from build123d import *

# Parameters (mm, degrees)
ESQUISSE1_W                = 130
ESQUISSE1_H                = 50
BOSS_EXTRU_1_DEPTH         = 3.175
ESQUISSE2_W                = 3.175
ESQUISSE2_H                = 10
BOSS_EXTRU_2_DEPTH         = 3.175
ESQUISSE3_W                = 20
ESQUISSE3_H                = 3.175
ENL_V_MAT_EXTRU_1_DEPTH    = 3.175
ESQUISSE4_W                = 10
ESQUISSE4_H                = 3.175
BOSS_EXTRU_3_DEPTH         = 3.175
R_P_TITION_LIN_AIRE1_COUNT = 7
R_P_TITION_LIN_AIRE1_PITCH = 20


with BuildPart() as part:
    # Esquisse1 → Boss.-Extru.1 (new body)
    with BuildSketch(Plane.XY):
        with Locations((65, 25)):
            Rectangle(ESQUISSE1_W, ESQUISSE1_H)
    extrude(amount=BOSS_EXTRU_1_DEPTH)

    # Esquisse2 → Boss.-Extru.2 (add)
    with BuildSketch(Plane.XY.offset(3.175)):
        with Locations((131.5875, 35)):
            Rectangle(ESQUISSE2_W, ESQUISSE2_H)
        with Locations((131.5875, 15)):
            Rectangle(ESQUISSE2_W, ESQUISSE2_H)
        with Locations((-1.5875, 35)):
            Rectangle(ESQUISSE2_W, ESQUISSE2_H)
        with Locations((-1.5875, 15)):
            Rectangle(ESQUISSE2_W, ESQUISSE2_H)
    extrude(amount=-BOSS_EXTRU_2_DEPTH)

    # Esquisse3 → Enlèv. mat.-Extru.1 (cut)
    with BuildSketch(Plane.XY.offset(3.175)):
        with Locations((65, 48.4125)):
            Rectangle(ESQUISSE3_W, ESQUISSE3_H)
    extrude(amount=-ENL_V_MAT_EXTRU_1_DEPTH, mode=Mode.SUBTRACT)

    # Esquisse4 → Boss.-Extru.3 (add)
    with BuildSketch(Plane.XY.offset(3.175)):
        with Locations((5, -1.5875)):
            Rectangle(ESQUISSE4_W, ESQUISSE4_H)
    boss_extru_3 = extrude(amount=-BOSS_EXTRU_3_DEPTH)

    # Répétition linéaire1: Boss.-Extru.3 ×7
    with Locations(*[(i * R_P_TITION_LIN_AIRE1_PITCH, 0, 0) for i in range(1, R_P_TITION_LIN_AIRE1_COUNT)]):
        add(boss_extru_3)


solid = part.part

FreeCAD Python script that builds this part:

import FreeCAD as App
import Part
import Sketcher


def add_polygon(sketch, points):
    """Adds a closed chain of lines whose ends are joined by coincident constraints."""
    first, n = sketch.GeometryCount, len(points)
    for a, b in zip(points, points[1:] + points[:1]):
        sketch.addGeometry(Part.LineSegment(App.Vector(*a, 0), App.Vector(*b, 0)), False)
    for i in range(n):
        sketch.addConstraint(Sketcher.Constraint("Coincident", first + i, 2, first + (i + 1) % n, 1))

doc = App.newDocument("Part")
body = doc.addObject("PartDesign::Body", "Body")

# Sketch on XY plane
sketch1 = body.newObject("Sketcher::SketchObject", "Sketch")
sketch1.AttachmentSupport = (doc.getObject("XY_Plane"), [""])
sketch1.MapMode = "FlatFace"
add_polygon(sketch1, [(0, 50), (0, 0), (130, 0), (130, 50)])  # lines 0-3
sketch1.addConstraint(Sketcher.Constraint("Vertical", 0))
sketch1.addConstraint(Sketcher.Constraint("Horizontal", 1))
sketch1.addConstraint(Sketcher.Constraint("Vertical", 2))
sketch1.addConstraint(Sketcher.Constraint("Horizontal", 3))
sketch1.addConstraint(Sketcher.Constraint("Coincident", 0, 2, -1, 1))
sketch1.addConstraint(Sketcher.Constraint("DistanceX", 1, 1, 1, 2, 130.0))
sketch1.addConstraint(Sketcher.Constraint("DistanceY", 0, 2, 0, 1, 50.0))
pad1 = body.newObject("PartDesign::Pad", "Pad")
pad1.Profile = sketch1
pad1.Length = 3.175

# Sketch on XY plane
sketch2 = body.newObject("Sketcher::SketchObject", "Sketch001")
sketch2.AttachmentSupport = (doc.getObject("XY_Plane"), [""])
sketch2.MapMode = "FlatFace"
sketch2.AttachmentOffset = App.Placement(App.Vector(0, 0, 3.175), App.Rotation())
add_polygon(sketch2, [(130, 40), (130, 30), (133.2, 30), (133.2, 40)])  # lines 0-3
add_polygon(sketch2, [(130, 20), (130, 10), (133.2, 10), (133.2, 20)])  # lines 4-7
add_polygon(sketch2, [(-3.2, 40), (-3.2, 30), (0, 30), (0, 40)])  # lines 8-11
add_polygon(sketch2, [(-3.2, 20), (-3.2, 10), (0, 10), (0, 20)])  # lines 12-15
sketch2.addConstraint(Sketcher.Constraint("Vertical", 0))
sketch2.addConstraint(Sketcher.Constraint("Horizontal", 1))
sketch2.addConstraint(Sketcher.Constraint("Vertical", 2))
sketch2.addConstraint(Sketcher.Constraint("Horizontal", 3))
sketch2.addConstraint(Sketcher.Constraint("Vertical", 4))
sketch2.addConstraint(Sketcher.Constraint("Horizontal", 5))
sketch2.addConstraint(Sketcher.Constraint("Vertical", 6))
sketch2.addConstraint(Sketcher.Constraint("Horizontal", 7))
sketch2.addConstraint(Sketcher.Constraint("Vertical", 8))
sketch2.addConstraint(Sketcher.Constraint("Horizontal", 9))
sketch2.addConstraint(Sketcher.Constraint("Vertical", 10))
sketch2.addConstraint(Sketcher.Constraint("Horizontal", 11))
sketch2.addConstraint(Sketcher.Constraint("Vertical", 12))
sketch2.addConstraint(Sketcher.Constraint("Horizontal", 13))
sketch2.addConstraint(Sketcher.Constraint("Vertical", 14))
sketch2.addConstraint(Sketcher.Constraint("Horizontal", 15))
sketch2.addConstraint(Sketcher.Constraint("PointOnObject", 9, 2, -2))
sketch2.addConstraint(Sketcher.Constraint("PointOnObject", 13, 2, -2))
sketch2.addConstraint(Sketcher.Constraint("Horizontal", 1, 2, 8, 2))
sketch2.addConstraint(Sketcher.Constraint("Horizontal", 3, 2, 10, 2))
sketch2.addConstraint(Sketcher.Constraint("Horizontal", 5, 2, 12, 2))
sketch2.addConstraint(Sketcher.Constraint("Horizontal", 7, 2, 14, 2))
sketch2.addConstraint(Sketcher.Constraint("Vertical", 3, 2, 4, 2))
sketch2.addConstraint(Sketcher.Constraint("Vertical", 2, 2, 5, 2))
sketch2.addConstraint(Sketcher.Constraint("Vertical", 11, 2, 12, 2))
sketch2.addConstraint(Sketcher.Constraint("Equal", 7, 9))
sketch2.addConstraint(Sketcher.Constraint("Equal", 2, 4))
sketch2.addConstraint(Sketcher.Constraint("DistanceY", 0, 2, 0, 1, 10.0))
sketch2.addConstraint(Sketcher.Constraint("DistanceX", -1, 1, 0, 2, 130.0))
sketch2.addConstraint(Sketcher.Constraint("DistanceY", -1, 1, 0, 2, 30.0))
sketch2.addConstraint(Sketcher.Constraint("DistanceY", -1, 1, 4, 2, 10.0))
sketch2.addConstraint(Sketcher.Constraint("DistanceX", 1, 1, 1, 2, 3.175))
pad2 = body.newObject("PartDesign::Pad", "Pad001")
pad2.Profile = sketch2
pad2.Length = 3.175
pad2.Reversed = True

# Sketch on XY plane
sketch3 = body.newObject("Sketcher::SketchObject", "Sketch002")
sketch3.AttachmentSupport = (doc.getObject("XY_Plane"), [""])
sketch3.MapMode = "FlatFace"
sketch3.AttachmentOffset = App.Placement(App.Vector(0, 0, 3.175), App.Rotation())
add_polygon(sketch3, [(55, 50), (55, 46.8), (75, 46.8), (75, 50)])  # lines 0-3
sketch3.addConstraint(Sketcher.Constraint("Vertical", 0))
sketch3.addConstraint(Sketcher.Constraint("Horizontal", 1))
sketch3.addConstraint(Sketcher.Constraint("Vertical", 2))
sketch3.addConstraint(Sketcher.Constraint("Horizontal", 3))
sketch3.addConstraint(Sketcher.Constraint("DistanceX", 1, 1, 1, 2, 20.0))
sketch3.addConstraint(Sketcher.Constraint("DistanceX", -1, 1, 0, 2, 55.0))
sketch3.addConstraint(Sketcher.Constraint("DistanceY", -1, 1, 2, 2, 50.0))
sketch3.addConstraint(Sketcher.Constraint("DistanceY", 0, 2, 0, 1, 3.175))
pocket1 = body.newObject("PartDesign::Pocket", "Pocket")
pocket1.Profile = sketch3
pocket1.Length = 3.175

# Sketch on XY plane
sketch4 = body.newObject("Sketcher::SketchObject", "Sketch003")
sketch4.AttachmentSupport = (doc.getObject("XY_Plane"), [""])
sketch4.MapMode = "FlatFace"
sketch4.AttachmentOffset = App.Placement(App.Vector(0, 0, 3.175), App.Rotation())
add_polygon(sketch4, [(0, 0), (0, -3.2), (10, -3.2), (10, 0)])  # lines 0-3
sketch4.addConstraint(Sketcher.Constraint("Vertical", 0))
sketch4.addConstraint(Sketcher.Constraint("Horizontal", 1))
sketch4.addConstraint(Sketcher.Constraint("Vertical", 2))
sketch4.addConstraint(Sketcher.Constraint("Horizontal", 3))
sketch4.addConstraint(Sketcher.Constraint("Coincident", 3, 2, -1, 1))
sketch4.addConstraint(Sketcher.Constraint("DistanceX", 1, 1, 1, 2, 10.0))
sketch4.addConstraint(Sketcher.Constraint("DistanceY", 0, 2, 0, 1, 3.175))
pad3 = body.newObject("PartDesign::Pad", "Pad002")
pad3.Profile = sketch4
pad3.Length = 3.175
pad3.Reversed = True
doc.recompute()

linearpattern = body.newObject("PartDesign::LinearPattern", "LinearPattern")
linearpattern.Originals = [pad3]
linearpattern.Direction = (doc.getObject("X_Axis"), [""])
linearpattern.Mode = "offset"
linearpattern.Offset = 20
linearpattern.Occurrences = 7
body.Tip = linearpattern

doc.recompute()
